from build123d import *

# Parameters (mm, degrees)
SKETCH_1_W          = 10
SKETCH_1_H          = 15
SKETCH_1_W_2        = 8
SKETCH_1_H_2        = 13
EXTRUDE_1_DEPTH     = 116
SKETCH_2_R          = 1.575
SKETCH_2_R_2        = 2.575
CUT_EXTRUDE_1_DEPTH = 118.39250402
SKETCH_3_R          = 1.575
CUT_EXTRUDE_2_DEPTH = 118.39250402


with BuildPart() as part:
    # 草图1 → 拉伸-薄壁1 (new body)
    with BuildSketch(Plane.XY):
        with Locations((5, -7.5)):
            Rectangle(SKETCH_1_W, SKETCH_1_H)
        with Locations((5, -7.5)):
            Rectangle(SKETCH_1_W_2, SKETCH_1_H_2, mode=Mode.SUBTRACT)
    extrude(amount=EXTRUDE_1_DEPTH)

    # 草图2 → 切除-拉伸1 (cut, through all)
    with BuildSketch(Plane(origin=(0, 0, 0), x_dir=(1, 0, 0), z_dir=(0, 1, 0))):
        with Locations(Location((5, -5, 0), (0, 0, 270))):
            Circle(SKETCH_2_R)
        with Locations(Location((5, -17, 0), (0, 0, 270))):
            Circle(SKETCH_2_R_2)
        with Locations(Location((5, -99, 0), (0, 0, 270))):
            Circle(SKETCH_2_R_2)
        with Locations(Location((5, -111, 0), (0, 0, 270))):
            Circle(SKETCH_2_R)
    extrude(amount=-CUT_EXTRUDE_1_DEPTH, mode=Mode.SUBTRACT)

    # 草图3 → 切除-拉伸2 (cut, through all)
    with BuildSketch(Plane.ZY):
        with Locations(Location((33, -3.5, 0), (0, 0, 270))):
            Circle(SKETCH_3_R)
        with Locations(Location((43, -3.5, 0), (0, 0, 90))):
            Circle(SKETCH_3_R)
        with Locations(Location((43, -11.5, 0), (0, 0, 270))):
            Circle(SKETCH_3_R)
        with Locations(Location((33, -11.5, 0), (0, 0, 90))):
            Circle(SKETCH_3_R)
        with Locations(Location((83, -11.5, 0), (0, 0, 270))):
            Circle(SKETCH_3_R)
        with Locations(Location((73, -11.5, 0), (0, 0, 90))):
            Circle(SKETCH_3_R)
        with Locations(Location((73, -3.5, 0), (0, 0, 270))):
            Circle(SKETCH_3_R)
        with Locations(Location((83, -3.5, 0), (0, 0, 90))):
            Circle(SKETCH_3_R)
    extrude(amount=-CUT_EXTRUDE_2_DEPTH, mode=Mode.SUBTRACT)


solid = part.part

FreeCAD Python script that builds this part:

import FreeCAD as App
import Part
import Sketcher
Q = App.Units.Quantity


def add_polygon(sketch, points):
    """Adds a closed chain of lines whose ends are joined by coincident constraints."""
    first, n = sketch.GeometryCount, len(points)
    for a, b in zip(points, points[1:] + points[:1]):
        sketch.addGeometry(Part.LineSegment(App.Vector(*a, 0), App.Vector(*b, 0)), False)
    for i in range(n):
        sketch.addConstraint(Sketcher.Constraint("Coincident", first + i, 2, first + (i + 1) % n, 1))

doc = App.newDocument("Part")
params = doc.addObject("Spreadsheet::Sheet", "Params")
for row, (alias, value) in enumerate([
    ("sketch1_width", "10 mm"),
    ("sketch1_width2", "8 mm"),
    ("sketch1_height", "15 mm"),
    ("sketch1_height2", "13 mm"),
    ("pad1_length", "116 mm"),
    ("sketch2_diameter", "3.15 mm"),
    ("sketch2_diameter2", "5.15 mm"),
    ("sketch3_diameter", "3.15 mm"),
], start=1):
    params.set(f"A{row}", alias)
    params.set(f"B{row}", "=" + value)
    params.setAlias(f"B{row}", alias)

body = doc.addObject("PartDesign::Body", "Body")

sketch1 = body.newObject("Sketcher::SketchObject", "Sketch")
sketch1.AttachmentSupport = (doc.getObject("XY_Plane"), [""])
sketch1.MapMode = "FlatFace"
add_polygon(sketch1, [(0, 0), (0, -15), (10, -15), (10, 0)])
add_polygon(sketch1, [(9, -14), (1, -14), (1, -1), (9, -1)])
sketch1.addConstraint([
    Sketcher.Constraint("Vertical", 0),
    Sketcher.Constraint("Horizontal", 1),
    Sketcher.Constraint("Vertical", 2),
    Sketcher.Constraint("Horizontal", 3),
    Sketcher.Constraint("Horizontal", 4),
    Sketcher.Constraint("Vertical", 5),
    Sketcher.Constraint("Horizontal", 6),
    Sketcher.Constraint("Vertical", 7),
    Sketcher.Constraint("Coincident", 3, 2, -1, 1),
    Sketcher.Constraint("DistanceX", 1, 1, 1, 2, Q("10 mm")),
    Sketcher.Constraint("DistanceX", 4, 2, 4, 1, Q("8 mm")),
    Sketcher.Constraint("DistanceY", 0, 2, 0, 1, Q("15 mm")),
    Sketcher.Constraint("DistanceY", 5, 1, 5, 2, Q("13 mm")),
    Sketcher.Constraint("DistanceX", -1, 1, 4, 2, Q("1 mm")),
    Sketcher.Constraint("DistanceY", 4, 2, -1, 1, Q("14 mm")),
])
sketch1.setExpression("Constraints[17]", "Params.sketch1_width")
sketch1.setExpression("Constraints[18]", "Params.sketch1_width2")
sketch1.setExpression("Constraints[19]", "Params.sketch1_height")
sketch1.setExpression("Constraints[20]", "Params.sketch1_height2")
pad1 = body.newObject("PartDesign::Pad", "Pad")
pad1.Profile = sketch1
pad1.setExpression("Length", "Params.pad1_length")

sketch2 = body.newObject("Sketcher::SketchObject", "Sketch001")
sketch2.AttachmentSupport = (doc.getObject("XZ_Plane"), [""])
sketch2.MapMode = "FlatFace"
sketch2.addGeometry([
    Part.Circle(App.Vector(5, 5, 0), App.Vector(0, 0, 1), 1.6),
    Part.Circle(App.Vector(5, 17, 0), App.Vector(0, 0, 1), 2.6),
    Part.Circle(App.Vector(5, 99, 0), App.Vector(0, 0, 1), 2.6),
    Part.Circle(App.Vector(5, 111, 0), App.Vector(0, 0, 1), 1.6),
], False)
sketch2.addConstraint([
    Sketcher.Constraint("Equal", 1, 2),
    Sketcher.Constraint("Equal", 0, 3),
    Sketcher.Constraint("Vertical", 0, 3, 1, 3),
    Sketcher.Constraint("Vertical", 1, 3, 2, 3),
    Sketcher.Constraint("Vertical", 2, 3, 3, 3),
    Sketcher.Constraint("Diameter", 0, Q("3.15 mm")),
    Sketcher.Constraint("Diameter", 1, Q("5.15 mm")),
    Sketcher.Constraint("DistanceX", -1, 1, 0, 3, Q("5 mm")),
    Sketcher.Constraint("DistanceY", -1, 1, 0, 3, Q("5 mm")),
    Sketcher.Constraint("DistanceY", -1, 1, 1, 3, Q("17 mm")),
    Sketcher.Constraint("DistanceY", -1, 1, 2, 3, Q("99 mm")),
    Sketcher.Constraint("DistanceY", -1, 1, 3, 3, Q("111 mm")),
])
sketch2.setExpression("Constraints[5]", "Params.sketch2_diameter")
sketch2.setExpression("Constraints[6]", "Params.sketch2_diameter2")
pocket1 = body.newObject("PartDesign::Pocket", "Pocket")
pocket1.Profile = sketch2
pocket1.Type = "ThroughAll"
pocket1.Reversed = True

sketch3 = body.newObject("Sketcher::SketchObject", "Sketch002")
sketch3.AttachmentSupport = (doc.getObject("YZ_Plane"), [""])
sketch3.MapMode = "FlatFace"
sketch3.addGeometry([
    Part.Circle(App.Vector(-3.5, 33, 0), App.Vector(0, 0, 1), 1.6),
    Part.Circle(App.Vector(-3.5, 43, 0), App.Vector(0, 0, 1), 1.6),
    Part.Circle(App.Vector(-11.5, 43, 0), App.Vector(0, 0, 1), 1.6),
    Part.Circle(App.Vector(-11.5, 33, 0), App.Vector(0, 0, 1), 1.6),
    Part.Circle(App.Vector(-11.5, 83, 0), App.Vector(0, 0, 1), 1.6),
    Part.Circle(App.Vector(-11.5, 73, 0), App.Vector(0, 0, 1), 1.6),
    Part.Circle(App.Vector(-3.5, 73, 0), App.Vector(0, 0, 1), 1.6),
    Part.Circle(App.Vector(-3.5, 83, 0), App.Vector(0, 0, 1), 1.6),
], False)
sketch3.addConstraint([
    Sketcher.Constraint("Equal", 0, 1),
    Sketcher.Constraint("Equal", 1, 2),
    Sketcher.Constraint("Equal", 2, 3),
    Sketcher.Constraint("Equal", 3, 4),
    Sketcher.Constraint("Equal", 4, 5),
    Sketcher.Constraint("Equal", 5, 6),
    Sketcher.Constraint("Equal", 6, 7),
    Sketcher.Constraint("Horizontal", 1, 3, 2, 3),
    Sketcher.Constraint("Horizontal", 0, 3, 3, 3),
    Sketcher.Constraint("Horizontal", 5, 3, 6, 3),
    Sketcher.Constraint("Horizontal", 4, 3, 7, 3),
    Sketcher.Constraint("Vertical", 0, 3, 1, 3),
    Sketcher.Constraint("Vertical", 2, 3, 3, 3),
    Sketcher.Constraint("Vertical", 3, 3, 4, 3),
    Sketcher.Constraint("Vertical", 4, 3, 5, 3),
    Sketcher.Constraint("Vertical", 1, 3, 6, 3),
    Sketcher.Constraint("Vertical", 6, 3, 7, 3),
    Sketcher.Constraint("Diameter", 0, Q("3.15 mm")),
    Sketcher.Constraint("DistanceY", -1, 1, 0, 3, Q("33 mm")),
    Sketcher.Constraint("DistanceY", -1, 1, 1, 3, Q("43 mm")),
    Sketcher.Constraint("DistanceY", -1, 1, 4, 3, Q("83 mm")),
    Sketcher.Constraint("DistanceY", -1, 1, 5, 3, Q("73 mm")),
    Sketcher.Constraint("DistanceX", 2, 3, 1, 3, Q("8 mm")),
    Sketcher.Constraint("DistanceX", 0, 3, -1, 1, Q("3.5 mm")),
])
sketch3.setExpression("Constraints[17]", "Params.sketch3_diameter")
pocket2 = body.newObject("PartDesign::Pocket", "Pocket001")
pocket2.Profile = sketch3
pocket2.Type = "ThroughAll"
pocket2.Reversed = True

doc.recompute()
